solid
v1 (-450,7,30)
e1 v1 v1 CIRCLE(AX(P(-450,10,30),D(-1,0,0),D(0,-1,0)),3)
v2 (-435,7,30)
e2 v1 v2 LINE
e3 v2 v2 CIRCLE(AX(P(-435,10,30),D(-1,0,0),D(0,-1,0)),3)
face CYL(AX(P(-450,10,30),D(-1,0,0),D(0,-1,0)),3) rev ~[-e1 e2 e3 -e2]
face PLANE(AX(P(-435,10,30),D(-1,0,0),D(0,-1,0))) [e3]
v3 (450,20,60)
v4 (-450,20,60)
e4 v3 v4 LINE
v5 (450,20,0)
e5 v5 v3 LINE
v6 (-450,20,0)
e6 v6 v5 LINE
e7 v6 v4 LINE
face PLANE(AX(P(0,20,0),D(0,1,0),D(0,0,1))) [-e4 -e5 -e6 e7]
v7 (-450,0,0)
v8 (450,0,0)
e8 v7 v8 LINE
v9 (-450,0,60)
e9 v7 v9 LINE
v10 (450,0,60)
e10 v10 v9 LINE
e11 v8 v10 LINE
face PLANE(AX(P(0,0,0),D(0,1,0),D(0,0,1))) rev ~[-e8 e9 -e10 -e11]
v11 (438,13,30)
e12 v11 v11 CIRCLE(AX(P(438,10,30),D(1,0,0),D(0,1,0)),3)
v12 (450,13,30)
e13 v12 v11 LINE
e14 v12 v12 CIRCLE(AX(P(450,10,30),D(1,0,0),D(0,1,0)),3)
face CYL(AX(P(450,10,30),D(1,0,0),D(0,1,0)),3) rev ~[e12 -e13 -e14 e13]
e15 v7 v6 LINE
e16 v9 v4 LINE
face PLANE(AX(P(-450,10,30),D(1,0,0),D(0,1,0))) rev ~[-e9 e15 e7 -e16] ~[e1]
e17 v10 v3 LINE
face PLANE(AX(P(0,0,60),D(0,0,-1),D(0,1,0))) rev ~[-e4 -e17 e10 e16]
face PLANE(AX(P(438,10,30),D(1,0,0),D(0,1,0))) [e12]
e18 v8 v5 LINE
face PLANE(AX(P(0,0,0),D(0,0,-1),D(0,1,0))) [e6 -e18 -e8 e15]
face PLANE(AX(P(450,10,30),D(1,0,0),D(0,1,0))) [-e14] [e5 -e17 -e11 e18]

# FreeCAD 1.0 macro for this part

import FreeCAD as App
import Part
import Sketcher

V = App.Vector
Q = App.Units.Quantity


def add_polygon(sketch, points):
    """Adds a closed chain of lines whose ends are joined by coincident constraints."""
    first, n = sketch.GeometryCount, len(points)
    for a, b in zip(points, points[1:] + points[:1]):
        sketch.addGeometry(Part.LineSegment(App.Vector(*a, 0), App.Vector(*b, 0)), False)
    for i in range(n):
        sketch.addConstraint(Sketcher.Constraint("Coincident", first + i, 2, first + (i + 1) % n, 1))

doc = App.newDocument("Part")
body = doc.addObject("PartDesign::Body", "Body")

sketch1 = body.newObject("Sketcher::SketchObject", "Sketch")
sketch1.AttachmentSupport = (doc.getObject("YZ_Plane"), [""])
sketch1.MapMode = "FlatFace"
add_polygon(sketch1, [(0, 60), (0, 0), (20, 0), (20, 60)])
sketch1.addConstraint([
    Sketcher.Constraint("Vertical", 0),
    Sketcher.Constraint("Horizontal", 1),
    Sketcher.Constraint("Vertical", 2),
    Sketcher.Constraint("Horizontal", 3),
    Sketcher.Constraint("Coincident", 0, 2, -1, 1),
    Sketcher.Constraint("DistanceX", 1, 1, 1, 2, Q("20 mm")),
    Sketcher.Constraint("DistanceY", 0, 2, 0, 1, Q("60 mm")),
])
pad1 = body.newObject("PartDesign::Pad", "Pad")
pad1.Profile = sketch1
pad1.Length = 900
pad1.Midplane = True

sketch2 = body.newObject("Sketcher::SketchObject", "Sketch001")
sketch2.AttachmentSupport = (doc.getObject("YZ_Plane"), [""])
sketch2.MapMode = "FlatFace"
sketch2.AttachmentOffset = App.Placement(V(0, 0, 450), App.Rotation())
sketch2.addGeometry(Part.Circle(V(10, 30, 0), V(0, 0, 1), 3), False)
sketch2.addConstraint([
    Sketcher.Constraint("Diameter", 0, Q("6 mm")),
    Sketcher.Constraint("DistanceX", -1, 1, 0, 3, Q("10 mm")),
    Sketcher.Constraint("DistanceY", -1, 1, 0, 3, Q("30 mm")),
])
pocket1 = body.newObject("PartDesign::Pocket", "Pocket")
pocket1.Profile = sketch2
pocket1.Length = 12

sketch3 = body.newObject("Sketcher::SketchObject", "Sketch002")
sketch3.AttachmentSupport = (doc.getObject("YZ_Plane"), [""])
sketch3.MapMode = "FlatFace"
sketch3.AttachmentOffset = App.Placement(V(0, 0, -450), App.Rotation())
sketch3.addGeometry(Part.Circle(V(10, 30, 0), V(0, 0, 1), 3), False)
sketch3.addConstraint([
    Sketcher.Constraint("Diameter", 0, Q("6 mm")),
    Sketcher.Constraint("DistanceX", -1, 1, 0, 3, Q("10 mm")),
    Sketcher.Constraint("DistanceY", -1, 1, 0, 3, Q("30 mm")),
])
pocket2 = body.newObject("PartDesign::Pocket", "Pocket001")
pocket2.Profile = sketch3
pocket2.Length = 15
pocket2.Reversed = True

doc.recompute()
